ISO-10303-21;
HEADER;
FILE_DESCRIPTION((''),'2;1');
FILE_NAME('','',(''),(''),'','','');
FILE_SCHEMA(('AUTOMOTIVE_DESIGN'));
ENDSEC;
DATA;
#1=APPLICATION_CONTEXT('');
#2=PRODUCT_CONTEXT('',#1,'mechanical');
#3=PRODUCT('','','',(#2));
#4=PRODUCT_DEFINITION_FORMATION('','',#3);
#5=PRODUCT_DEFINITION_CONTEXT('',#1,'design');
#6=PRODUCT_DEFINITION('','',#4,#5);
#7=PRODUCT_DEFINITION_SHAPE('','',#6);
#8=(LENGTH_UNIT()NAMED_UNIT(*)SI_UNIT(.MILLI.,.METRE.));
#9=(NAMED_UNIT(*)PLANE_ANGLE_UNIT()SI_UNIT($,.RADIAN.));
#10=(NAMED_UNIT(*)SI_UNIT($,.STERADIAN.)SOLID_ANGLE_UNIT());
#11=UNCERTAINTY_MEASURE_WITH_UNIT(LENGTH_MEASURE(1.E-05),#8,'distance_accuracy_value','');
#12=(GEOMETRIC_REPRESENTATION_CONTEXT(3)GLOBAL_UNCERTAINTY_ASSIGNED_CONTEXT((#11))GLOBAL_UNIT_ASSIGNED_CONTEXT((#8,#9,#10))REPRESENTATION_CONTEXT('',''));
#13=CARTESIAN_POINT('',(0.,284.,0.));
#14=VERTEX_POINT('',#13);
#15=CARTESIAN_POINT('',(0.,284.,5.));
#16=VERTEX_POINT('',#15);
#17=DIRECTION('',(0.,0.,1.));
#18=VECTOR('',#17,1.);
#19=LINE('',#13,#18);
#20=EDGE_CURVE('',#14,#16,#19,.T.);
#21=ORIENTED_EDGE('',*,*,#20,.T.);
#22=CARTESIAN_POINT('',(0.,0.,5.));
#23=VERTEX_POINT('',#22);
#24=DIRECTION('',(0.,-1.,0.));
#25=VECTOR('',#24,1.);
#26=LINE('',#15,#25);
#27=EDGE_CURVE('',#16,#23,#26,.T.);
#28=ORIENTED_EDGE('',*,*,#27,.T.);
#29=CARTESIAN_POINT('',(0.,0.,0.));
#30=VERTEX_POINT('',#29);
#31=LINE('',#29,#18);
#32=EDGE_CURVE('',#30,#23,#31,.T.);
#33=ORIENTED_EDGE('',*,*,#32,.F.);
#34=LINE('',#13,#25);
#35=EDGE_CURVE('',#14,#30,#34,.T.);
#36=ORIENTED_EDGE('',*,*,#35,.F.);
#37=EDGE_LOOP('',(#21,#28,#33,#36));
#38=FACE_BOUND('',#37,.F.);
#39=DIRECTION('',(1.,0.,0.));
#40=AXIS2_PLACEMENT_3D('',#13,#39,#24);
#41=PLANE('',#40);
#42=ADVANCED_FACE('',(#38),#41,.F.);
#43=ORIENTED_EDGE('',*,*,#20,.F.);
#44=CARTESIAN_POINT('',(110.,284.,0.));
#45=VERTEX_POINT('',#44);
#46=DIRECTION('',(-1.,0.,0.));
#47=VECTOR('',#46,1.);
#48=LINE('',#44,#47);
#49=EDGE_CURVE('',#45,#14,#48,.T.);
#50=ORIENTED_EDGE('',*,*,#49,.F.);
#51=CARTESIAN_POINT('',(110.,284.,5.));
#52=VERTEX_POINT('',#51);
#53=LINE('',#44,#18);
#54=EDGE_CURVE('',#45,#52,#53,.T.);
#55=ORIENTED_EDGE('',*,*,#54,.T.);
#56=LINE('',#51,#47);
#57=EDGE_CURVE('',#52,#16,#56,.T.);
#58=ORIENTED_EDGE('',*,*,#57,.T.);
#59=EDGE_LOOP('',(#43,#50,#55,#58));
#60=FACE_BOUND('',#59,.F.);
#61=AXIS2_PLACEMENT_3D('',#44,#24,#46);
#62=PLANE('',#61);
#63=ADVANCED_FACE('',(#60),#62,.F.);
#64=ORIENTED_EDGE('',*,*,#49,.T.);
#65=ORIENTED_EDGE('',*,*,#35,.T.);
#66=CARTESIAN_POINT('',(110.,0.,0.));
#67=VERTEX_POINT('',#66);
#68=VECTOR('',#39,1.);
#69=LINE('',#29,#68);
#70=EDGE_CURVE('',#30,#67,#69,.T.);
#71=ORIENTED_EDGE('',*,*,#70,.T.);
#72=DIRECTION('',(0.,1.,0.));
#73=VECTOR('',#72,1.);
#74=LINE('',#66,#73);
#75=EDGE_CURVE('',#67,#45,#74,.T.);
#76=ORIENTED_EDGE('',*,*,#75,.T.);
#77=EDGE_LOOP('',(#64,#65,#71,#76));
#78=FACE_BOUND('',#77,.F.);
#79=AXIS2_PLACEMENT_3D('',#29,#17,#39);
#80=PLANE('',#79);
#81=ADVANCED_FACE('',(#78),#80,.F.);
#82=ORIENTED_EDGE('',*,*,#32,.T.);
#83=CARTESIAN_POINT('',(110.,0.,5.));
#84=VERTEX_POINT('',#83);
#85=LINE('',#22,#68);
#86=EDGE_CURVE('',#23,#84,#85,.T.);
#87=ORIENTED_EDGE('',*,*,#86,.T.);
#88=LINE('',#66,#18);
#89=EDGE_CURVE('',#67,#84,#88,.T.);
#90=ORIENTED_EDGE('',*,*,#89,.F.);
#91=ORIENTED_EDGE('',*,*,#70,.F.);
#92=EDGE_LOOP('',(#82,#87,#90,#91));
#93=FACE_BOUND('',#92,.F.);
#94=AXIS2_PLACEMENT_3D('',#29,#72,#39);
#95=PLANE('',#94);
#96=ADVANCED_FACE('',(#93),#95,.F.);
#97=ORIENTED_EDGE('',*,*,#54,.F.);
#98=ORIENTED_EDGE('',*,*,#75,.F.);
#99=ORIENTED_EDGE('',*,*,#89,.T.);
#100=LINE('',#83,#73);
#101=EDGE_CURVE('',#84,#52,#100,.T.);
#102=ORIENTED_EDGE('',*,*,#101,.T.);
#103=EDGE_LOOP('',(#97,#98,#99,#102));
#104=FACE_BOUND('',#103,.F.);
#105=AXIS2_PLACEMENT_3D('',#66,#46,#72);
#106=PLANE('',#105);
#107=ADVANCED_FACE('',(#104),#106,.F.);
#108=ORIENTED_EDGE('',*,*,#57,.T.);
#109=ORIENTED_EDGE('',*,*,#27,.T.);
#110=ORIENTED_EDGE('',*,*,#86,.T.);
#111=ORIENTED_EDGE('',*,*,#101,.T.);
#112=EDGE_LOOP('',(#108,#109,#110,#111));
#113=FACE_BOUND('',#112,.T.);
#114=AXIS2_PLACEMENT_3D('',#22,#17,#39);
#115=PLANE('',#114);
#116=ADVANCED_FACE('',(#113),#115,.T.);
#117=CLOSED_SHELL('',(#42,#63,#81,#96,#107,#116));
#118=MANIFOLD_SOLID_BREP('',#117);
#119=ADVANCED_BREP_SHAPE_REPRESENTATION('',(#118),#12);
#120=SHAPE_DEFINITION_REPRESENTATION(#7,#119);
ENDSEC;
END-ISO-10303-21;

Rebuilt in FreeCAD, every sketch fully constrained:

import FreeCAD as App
import Part
import Sketcher

V = App.Vector


def add_polygon(sketch, points):
    """Adds a closed chain of lines whose ends are joined by coincident constraints."""
    first, n = sketch.GeometryCount, len(points)
    for a, b in zip(points, points[1:] + points[:1]):
        sketch.addGeometry(Part.LineSegment(App.Vector(*a, 0), App.Vector(*b, 0)), False)
    for i in range(n):
        sketch.addConstraint(Sketcher.Constraint("Coincident", first + i, 2, first + (i + 1) % n, 1))

doc = App.newDocument("Part")
params = doc.addObject("Spreadsheet::Sheet", "Params")
for row, (alias, value) in enumerate([
    ("sketch1_width", "110 mm"),
    ("sketch1_height", "284 mm"),
    ("pad1_length", "5 mm"),
], start=1):
    params.set(f"A{row}", alias)
    params.set(f"B{row}", "=" + value)
    params.setAlias(f"B{row}", alias)

body = doc.addObject("PartDesign::Body", "Body")

# Sketch on XY plane
sketch1 = body.newObject("Sketcher::SketchObject", "Sketch")
sketch1.AttachmentSupport = (doc.getObject("XY_Plane"), [""])
sketch1.MapMode = "FlatFace"
add_polygon(sketch1, [(0, 284), (0, 0), (110, 0), (110, 284)])  # lines 0-3
sketch1.addConstraint([
    Sketcher.Constraint("Vertical", 0),
    Sketcher.Constraint("Horizontal", 1),
    Sketcher.Constraint("Vertical", 2),
    Sketcher.Constraint("Horizontal", 3),
    Sketcher.Constraint("Coincident", 0, 2, -1, 1),
    Sketcher.Constraint("DistanceX", 1, 1, 1, 2, 110.0),
    Sketcher.Constraint("DistanceY", 0, 2, 0, 1, 284.0),
])
sketch1.setExpression("Constraints[9]", "Params.sketch1_width")
sketch1.setExpression("Constraints[10]", "Params.sketch1_height")
pad1 = body.newObject("PartDesign::Pad", "Pad")
pad1.Profile = sketch1
pad1.setExpression("Length", "Params.pad1_length")

doc.recompute()
